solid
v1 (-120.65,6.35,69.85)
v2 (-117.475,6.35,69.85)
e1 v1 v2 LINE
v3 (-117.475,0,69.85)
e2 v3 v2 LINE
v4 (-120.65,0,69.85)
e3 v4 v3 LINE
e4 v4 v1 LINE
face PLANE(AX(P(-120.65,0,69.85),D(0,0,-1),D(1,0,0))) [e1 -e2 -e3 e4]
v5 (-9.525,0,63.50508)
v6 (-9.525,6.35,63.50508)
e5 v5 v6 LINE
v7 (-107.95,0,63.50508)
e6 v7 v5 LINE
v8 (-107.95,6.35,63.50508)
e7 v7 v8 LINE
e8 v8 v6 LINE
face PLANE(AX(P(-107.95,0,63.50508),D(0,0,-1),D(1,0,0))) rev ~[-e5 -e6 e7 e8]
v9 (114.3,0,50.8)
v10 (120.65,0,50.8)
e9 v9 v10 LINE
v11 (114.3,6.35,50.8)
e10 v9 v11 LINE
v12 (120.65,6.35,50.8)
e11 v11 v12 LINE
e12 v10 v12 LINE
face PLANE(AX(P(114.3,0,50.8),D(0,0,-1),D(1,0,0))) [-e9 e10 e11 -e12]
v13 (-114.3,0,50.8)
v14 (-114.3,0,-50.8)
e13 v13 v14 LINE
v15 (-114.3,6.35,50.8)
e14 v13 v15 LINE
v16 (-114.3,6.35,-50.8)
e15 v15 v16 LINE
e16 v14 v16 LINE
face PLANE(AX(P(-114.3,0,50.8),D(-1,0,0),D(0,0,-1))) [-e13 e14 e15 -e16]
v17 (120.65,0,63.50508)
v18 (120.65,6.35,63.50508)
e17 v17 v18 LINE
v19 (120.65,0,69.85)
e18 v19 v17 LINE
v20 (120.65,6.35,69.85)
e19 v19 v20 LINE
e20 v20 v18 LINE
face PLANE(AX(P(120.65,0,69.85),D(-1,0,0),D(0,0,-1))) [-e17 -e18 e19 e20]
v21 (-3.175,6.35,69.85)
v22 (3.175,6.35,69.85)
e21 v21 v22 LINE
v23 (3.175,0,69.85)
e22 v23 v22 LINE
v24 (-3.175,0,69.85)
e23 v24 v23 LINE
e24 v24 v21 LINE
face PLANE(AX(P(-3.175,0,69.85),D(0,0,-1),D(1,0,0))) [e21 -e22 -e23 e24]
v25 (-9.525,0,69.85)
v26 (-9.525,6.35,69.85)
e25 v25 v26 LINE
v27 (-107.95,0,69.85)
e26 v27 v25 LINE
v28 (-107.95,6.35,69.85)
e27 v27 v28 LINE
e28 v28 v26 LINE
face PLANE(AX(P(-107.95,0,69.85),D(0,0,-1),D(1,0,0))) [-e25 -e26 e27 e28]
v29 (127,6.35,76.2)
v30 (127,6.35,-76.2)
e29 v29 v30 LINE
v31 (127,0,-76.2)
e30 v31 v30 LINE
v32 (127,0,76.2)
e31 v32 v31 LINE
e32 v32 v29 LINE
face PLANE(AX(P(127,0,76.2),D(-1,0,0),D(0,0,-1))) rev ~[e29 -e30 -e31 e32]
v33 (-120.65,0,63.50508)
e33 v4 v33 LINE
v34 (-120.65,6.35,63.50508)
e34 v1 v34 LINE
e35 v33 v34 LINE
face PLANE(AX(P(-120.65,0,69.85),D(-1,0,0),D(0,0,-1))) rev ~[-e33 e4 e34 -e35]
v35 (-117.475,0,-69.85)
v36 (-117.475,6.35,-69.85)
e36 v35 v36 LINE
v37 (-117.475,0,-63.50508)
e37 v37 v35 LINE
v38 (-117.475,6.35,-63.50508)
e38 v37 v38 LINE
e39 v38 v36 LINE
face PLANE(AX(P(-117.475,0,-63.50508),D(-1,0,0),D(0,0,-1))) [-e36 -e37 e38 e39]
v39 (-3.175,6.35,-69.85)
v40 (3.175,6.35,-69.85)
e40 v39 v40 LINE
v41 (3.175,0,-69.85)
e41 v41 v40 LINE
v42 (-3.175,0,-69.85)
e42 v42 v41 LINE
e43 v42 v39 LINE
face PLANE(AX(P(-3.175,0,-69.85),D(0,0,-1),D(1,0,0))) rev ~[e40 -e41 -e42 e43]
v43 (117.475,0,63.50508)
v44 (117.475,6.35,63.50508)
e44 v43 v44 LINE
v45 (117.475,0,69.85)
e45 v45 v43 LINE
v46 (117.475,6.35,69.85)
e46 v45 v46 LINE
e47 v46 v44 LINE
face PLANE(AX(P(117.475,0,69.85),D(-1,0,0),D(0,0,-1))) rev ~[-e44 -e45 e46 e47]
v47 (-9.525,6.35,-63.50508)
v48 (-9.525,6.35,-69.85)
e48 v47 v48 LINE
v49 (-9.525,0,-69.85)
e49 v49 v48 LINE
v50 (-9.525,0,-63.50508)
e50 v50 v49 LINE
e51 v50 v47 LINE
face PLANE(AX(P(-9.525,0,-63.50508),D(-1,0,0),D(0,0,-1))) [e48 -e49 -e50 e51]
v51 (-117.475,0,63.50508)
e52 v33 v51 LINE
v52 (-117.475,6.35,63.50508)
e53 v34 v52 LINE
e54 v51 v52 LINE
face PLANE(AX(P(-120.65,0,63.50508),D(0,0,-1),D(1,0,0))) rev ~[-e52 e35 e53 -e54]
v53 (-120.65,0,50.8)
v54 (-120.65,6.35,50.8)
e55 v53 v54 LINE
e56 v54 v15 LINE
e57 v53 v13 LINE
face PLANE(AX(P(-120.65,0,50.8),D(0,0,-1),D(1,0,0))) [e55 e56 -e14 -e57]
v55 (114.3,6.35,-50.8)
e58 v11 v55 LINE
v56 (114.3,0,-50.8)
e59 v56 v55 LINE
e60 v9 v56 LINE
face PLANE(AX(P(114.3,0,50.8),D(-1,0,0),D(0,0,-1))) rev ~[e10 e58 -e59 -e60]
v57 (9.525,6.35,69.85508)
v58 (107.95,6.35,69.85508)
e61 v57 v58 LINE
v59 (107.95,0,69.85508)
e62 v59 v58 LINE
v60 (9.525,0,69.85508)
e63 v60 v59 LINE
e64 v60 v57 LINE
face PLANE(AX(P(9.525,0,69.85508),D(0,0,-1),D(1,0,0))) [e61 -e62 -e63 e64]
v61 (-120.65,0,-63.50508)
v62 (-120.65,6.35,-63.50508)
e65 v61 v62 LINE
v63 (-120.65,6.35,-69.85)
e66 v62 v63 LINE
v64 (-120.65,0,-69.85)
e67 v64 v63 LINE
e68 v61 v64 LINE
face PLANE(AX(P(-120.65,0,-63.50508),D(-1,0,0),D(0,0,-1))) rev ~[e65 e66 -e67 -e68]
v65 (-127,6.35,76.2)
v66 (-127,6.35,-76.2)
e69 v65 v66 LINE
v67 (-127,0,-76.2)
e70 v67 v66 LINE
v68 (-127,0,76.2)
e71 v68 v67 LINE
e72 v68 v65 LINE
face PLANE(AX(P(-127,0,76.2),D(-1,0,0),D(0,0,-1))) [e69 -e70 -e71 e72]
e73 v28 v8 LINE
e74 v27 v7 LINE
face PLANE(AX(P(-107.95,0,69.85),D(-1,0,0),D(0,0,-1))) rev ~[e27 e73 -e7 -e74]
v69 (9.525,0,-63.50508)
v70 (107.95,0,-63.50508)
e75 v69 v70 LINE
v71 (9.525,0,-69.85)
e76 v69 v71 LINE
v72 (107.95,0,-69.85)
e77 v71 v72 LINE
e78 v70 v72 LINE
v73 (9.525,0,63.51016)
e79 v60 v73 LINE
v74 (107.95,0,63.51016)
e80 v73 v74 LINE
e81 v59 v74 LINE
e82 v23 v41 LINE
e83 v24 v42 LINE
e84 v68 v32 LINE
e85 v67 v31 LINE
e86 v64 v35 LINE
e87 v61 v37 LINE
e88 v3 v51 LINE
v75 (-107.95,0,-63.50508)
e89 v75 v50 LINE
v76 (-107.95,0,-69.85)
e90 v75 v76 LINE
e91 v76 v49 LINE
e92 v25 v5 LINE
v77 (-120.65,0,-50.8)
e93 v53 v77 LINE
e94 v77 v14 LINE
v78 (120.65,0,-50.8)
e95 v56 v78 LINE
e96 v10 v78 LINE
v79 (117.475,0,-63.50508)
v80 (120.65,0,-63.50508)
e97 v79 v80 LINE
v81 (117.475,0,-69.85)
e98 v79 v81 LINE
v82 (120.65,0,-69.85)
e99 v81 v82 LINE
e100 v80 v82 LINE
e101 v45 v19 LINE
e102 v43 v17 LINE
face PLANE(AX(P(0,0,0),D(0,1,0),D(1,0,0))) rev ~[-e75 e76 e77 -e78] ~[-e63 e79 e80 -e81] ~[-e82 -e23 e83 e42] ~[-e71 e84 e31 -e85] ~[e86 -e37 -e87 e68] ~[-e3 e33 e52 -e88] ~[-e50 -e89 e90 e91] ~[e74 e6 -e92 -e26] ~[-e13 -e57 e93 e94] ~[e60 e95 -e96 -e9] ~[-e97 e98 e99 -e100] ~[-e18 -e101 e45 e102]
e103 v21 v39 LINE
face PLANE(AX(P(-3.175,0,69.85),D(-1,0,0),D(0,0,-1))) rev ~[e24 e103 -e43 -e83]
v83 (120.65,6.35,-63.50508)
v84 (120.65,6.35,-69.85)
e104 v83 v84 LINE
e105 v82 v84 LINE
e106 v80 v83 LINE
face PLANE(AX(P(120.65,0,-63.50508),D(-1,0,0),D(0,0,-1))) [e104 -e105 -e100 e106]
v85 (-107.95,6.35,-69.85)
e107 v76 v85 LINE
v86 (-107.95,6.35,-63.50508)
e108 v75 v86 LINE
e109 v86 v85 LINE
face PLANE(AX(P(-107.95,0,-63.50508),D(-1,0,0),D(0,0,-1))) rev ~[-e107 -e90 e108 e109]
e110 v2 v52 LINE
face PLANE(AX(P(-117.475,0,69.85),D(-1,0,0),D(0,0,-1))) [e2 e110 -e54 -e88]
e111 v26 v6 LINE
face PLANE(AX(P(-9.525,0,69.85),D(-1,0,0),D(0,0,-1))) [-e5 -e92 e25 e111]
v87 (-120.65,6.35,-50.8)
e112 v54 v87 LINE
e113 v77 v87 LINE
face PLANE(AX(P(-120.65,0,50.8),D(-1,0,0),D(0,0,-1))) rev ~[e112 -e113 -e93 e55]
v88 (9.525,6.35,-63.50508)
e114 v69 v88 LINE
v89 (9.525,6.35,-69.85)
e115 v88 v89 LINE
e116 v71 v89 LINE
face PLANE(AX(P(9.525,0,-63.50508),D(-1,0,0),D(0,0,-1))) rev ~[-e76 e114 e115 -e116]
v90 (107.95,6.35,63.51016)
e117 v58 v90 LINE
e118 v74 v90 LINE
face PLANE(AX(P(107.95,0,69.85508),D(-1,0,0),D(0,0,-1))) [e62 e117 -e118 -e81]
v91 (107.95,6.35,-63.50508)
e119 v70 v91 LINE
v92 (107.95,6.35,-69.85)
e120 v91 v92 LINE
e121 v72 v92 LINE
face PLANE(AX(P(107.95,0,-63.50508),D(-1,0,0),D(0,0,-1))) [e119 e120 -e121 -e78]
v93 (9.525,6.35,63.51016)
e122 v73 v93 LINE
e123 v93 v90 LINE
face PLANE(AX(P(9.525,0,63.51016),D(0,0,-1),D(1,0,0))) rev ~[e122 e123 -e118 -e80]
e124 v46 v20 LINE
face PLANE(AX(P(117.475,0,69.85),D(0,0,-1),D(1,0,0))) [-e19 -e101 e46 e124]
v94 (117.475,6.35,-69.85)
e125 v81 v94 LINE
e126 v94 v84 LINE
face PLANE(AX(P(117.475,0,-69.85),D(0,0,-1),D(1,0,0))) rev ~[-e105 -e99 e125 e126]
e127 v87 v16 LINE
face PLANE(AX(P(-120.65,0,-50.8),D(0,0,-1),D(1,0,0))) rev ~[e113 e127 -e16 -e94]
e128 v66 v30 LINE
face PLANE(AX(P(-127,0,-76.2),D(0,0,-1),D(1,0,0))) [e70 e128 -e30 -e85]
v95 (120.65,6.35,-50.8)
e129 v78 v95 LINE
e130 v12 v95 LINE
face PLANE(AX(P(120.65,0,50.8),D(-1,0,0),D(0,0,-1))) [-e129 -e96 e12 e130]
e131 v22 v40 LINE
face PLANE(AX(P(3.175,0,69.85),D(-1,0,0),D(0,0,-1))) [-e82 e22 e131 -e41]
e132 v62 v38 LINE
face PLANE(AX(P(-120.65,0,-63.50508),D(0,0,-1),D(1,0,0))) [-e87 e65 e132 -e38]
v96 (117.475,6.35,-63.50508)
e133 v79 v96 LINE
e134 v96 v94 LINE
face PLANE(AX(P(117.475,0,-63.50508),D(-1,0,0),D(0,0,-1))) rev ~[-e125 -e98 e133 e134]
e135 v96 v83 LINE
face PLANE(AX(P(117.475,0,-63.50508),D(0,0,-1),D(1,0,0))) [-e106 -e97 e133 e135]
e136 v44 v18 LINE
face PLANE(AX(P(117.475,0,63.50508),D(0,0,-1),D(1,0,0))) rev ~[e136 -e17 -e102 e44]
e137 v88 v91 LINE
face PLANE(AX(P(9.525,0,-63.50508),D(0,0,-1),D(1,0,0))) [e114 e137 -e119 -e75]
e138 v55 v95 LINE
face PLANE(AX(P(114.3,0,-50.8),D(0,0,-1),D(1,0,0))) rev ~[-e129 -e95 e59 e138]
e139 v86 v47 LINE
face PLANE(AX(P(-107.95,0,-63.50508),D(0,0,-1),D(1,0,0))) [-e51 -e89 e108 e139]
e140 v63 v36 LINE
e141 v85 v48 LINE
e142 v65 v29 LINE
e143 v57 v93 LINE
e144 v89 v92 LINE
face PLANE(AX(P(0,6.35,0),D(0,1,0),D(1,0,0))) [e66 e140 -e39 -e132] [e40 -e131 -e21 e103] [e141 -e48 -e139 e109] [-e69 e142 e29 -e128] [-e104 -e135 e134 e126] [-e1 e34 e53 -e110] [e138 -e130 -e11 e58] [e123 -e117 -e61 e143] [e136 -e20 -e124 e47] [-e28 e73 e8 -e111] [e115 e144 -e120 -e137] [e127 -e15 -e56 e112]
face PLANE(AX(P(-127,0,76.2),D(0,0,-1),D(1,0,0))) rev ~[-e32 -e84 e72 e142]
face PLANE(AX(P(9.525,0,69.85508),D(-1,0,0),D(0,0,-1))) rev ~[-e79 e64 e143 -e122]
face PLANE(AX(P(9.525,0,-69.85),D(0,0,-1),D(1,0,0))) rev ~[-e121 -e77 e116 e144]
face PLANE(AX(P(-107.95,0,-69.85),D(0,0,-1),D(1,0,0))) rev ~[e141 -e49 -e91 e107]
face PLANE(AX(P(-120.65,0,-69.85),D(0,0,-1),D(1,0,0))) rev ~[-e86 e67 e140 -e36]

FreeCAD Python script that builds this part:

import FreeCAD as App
import Part
import Sketcher
from FreeCAD import Vector
Q = App.Units.Quantity


def add_polygon(sketch, points):
    """Adds a closed chain of lines whose ends are joined by coincident constraints."""
    first, n = sketch.GeometryCount, len(points)
    for a, b in zip(points, points[1:] + points[:1]):
        sketch.addGeometry(Part.LineSegment(App.Vector(*a, 0), App.Vector(*b, 0)), False)
    for i in range(n):
        sketch.addConstraint(Sketcher.Constraint("Coincident", first + i, 2, first + (i + 1) % n, 1))

doc = App.newDocument("Part")
body = doc.addObject("PartDesign::Body", "Body")

# Sketch on XZ plane
sketch1 = body.newObject("Sketcher::SketchObject", "Sketch")
sketch1.AttachmentSupport = (doc.getObject("XZ_Plane"), [""])
sketch1.MapMode = "FlatFace"
add_polygon(sketch1, [(-127, -76.2), (-127, 76.2), (127, 76.2), (127, -76.2)])  # lines 0-3
add_polygon(sketch1, [(-117.5, 69.8), (-120.7, 69.8), (-120.7, 63.5), (-117.5, 63.5)])  # lines 4-7
add_polygon(sketch1, [(-9.5, 69.8), (-108, 69.8), (-108, 63.5), (-9.5, 63.5)])  # lines 8-11
add_polygon(sketch1, [(108, 69.9), (9.5, 69.9), (9.5, 63.5), (108, 63.5)])  # lines 12-15
add_polygon(sketch1, [(120.7, 69.8), (117.5, 69.8), (117.5, 63.5), (120.7, 63.5)])  # lines 16-19
add_polygon(sketch1, [(-114.3, 50.8), (-120.7, 50.8), (-120.7, -50.8), (-114.3, -50.8)])  # lines 20-23
add_polygon(sketch1, [(-117.5, -63.5), (-120.7, -63.5), (-120.7, -69.8), (-117.5, -69.8)])  # lines 24-27
add_polygon(sketch1, [(-9.5, -63.5), (-108, -63.5), (-108, -69.8), (-9.5, -69.8)])  # lines 28-31
add_polygon(sketch1, [(3.2, 69.8), (-3.2, 69.8), (-3.2, -69.8), (3.2, -69.8)])  # lines 32-35
add_polygon(sketch1, [(120.7, 50.8), (114.3, 50.8), (114.3, -50.8), (120.7, -50.8)])  # lines 36-39
add_polygon(sketch1, [(108, -63.5), (9.5, -63.5), (9.5, -69.8), (108, -69.8)])  # lines 40-43
add_polygon(sketch1, [(120.7, -63.5), (117.5, -63.5), (117.5, -69.8), (120.7, -69.8)])  # lines 44-47
sketch1.addConstraint([
    Sketcher.Constraint("Vertical", 0),
    Sketcher.Constraint("Horizontal", 1),
    Sketcher.Constraint("Vertical", 2),
    Sketcher.Constraint("Horizontal", 3),
    Sketcher.Constraint("Horizontal", 4),
    Sketcher.Constraint("Vertical", 5),
    Sketcher.Constraint("Horizontal", 6),
    Sketcher.Constraint("Vertical", 7),
    Sketcher.Constraint("Horizontal", 8),
    Sketcher.Constraint("Vertical", 9),
    Sketcher.Constraint("Horizontal", 10),
    Sketcher.Constraint("Vertical", 11),
    Sketcher.Constraint("Horizontal", 12),
    Sketcher.Constraint("Vertical", 13),
    Sketcher.Constraint("Horizontal", 14),
    Sketcher.Constraint("Vertical", 15),
    Sketcher.Constraint("Horizontal", 16),
    Sketcher.Constraint("Vertical", 17),
    Sketcher.Constraint("Horizontal", 18),
    Sketcher.Constraint("Vertical", 19),
    Sketcher.Constraint("Horizontal", 20),
    Sketcher.Constraint("Vertical", 21),
    Sketcher.Constraint("Horizontal", 22),
    Sketcher.Constraint("Vertical", 23),
    Sketcher.Constraint("Horizontal", 24),
    Sketcher.Constraint("Vertical", 25),
    Sketcher.Constraint("Horizontal", 26),
    Sketcher.Constraint("Vertical", 27),
    Sketcher.Constraint("Horizontal", 28),
    Sketcher.Constraint("Vertical", 29),
    Sketcher.Constraint("Horizontal", 30),
    Sketcher.Constraint("Vertical", 31),
    Sketcher.Constraint("Horizontal", 32),
    Sketcher.Constraint("Vertical", 33),
    Sketcher.Constraint("Horizontal", 34),
    Sketcher.Constraint("Vertical", 35),
    Sketcher.Constraint("Horizontal", 36),
    Sketcher.Constraint("Vertical", 37),
    Sketcher.Constraint("Horizontal", 38),
    Sketcher.Constraint("Vertical", 39),
    Sketcher.Constraint("Horizontal", 40),
    Sketcher.Constraint("Vertical", 41),
    Sketcher.Constraint("Horizontal", 42),
    Sketcher.Constraint("Vertical", 43),
    Sketcher.Constraint("Horizontal", 44),
    Sketcher.Constraint("Vertical", 45),
    Sketcher.Constraint("Horizontal", 46),
    Sketcher.Constraint("Vertical", 47),
    Sketcher.Constraint("Symmetric", 0, 2, 2, 2, -1, 1),
    Sketcher.Constraint("Symmetric", 18, 2, 24, 2, -1, 1),
    Sketcher.Constraint("Symmetric", 16, 2, 26, 2, -1, 1),
    Sketcher.Constraint("Symmetric", 32, 2, 34, 2, -1, 1),
    Sketcher.Constraint("Symmetric", 22, 2, 36, 2, -1, 1),
    Sketcher.Constraint("Symmetric", 20, 2, 38, 2, -1, 1),
    Sketcher.Constraint("Symmetric", 10, 2, 40, 2, -1, 1),
    Sketcher.Constraint("Symmetric", 8, 2, 42, 2, -1, 1),
    Sketcher.Constraint("Symmetric", 6, 2, 44, 2, -1, 1),
    Sketcher.Constraint("Symmetric", 4, 2, 46, 2, -1, 1),
    Sketcher.Constraint("Symmetric", 7, 2, 16, 2, -2),
    Sketcher.Constraint("Symmetric", 5, 2, 18, 2, -2),
    Sketcher.Constraint("Symmetric", 31, 2, 40, 2, -2),
    Sketcher.Constraint("Symmetric", 29, 2, 42, 2, -2),
    Sketcher.Constraint("Horizontal", 7, 2, 8, 2),
    Sketcher.Constraint("Horizontal", 6, 2, 9, 2),
    Sketcher.Constraint("Horizontal", 19, 2, 32, 2),
    Sketcher.Constraint("Horizontal", 23, 2, 36, 2),
    Sketcher.Constraint("Vertical", 5, 2, 20, 2),
    Sketcher.Constraint("Vertical", 13, 2, 40, 2),
    Sketcher.Constraint("Vertical", 15, 2, 42, 2),
    Sketcher.Constraint("Equal", 22, 32),
    Sketcher.Constraint("Equal", 11, 13),
    Sketcher.Constraint("DistanceX", 1, 1, 1, 2, Q("10 in")),
    Sketcher.Constraint("DistanceY", 0, 1, 0, 2, Q("6 in")),
    Sketcher.Constraint("DistanceY", 21, 2, 21, 1, Q("4 in")),
    Sketcher.Constraint("DistanceY", 33, 2, 33, 1, Q("5.5 in")),
    Sketcher.Constraint("DistanceX", 20, 2, 20, 1, Q("0.25 in")),
    Sketcher.Constraint("DistanceX", 22, 2, -1, 1, Q("4.5 in")),
    Sketcher.Constraint("DistanceX", 4, 2, 8, 2, Q("0.5 in")),
    Sketcher.Constraint("DistanceX", 32, 2, 12, 2, Q("0.5 in")),
    Sketcher.Constraint("DistanceX", 4, 2, 4, 1, Q("0.125 in")),
    Sketcher.Constraint("DistanceY", 10, 2, 12, 2, Q("0.25 in")),
    Sketcher.Constraint("DistanceY", 5, 2, 5, 1, Q("0.2498 in")),
])
pad1 = body.newObject("PartDesign::Pad", "Pad")
pad1.Profile = sketch1
pad1.Length = Q("0.25 in")
pad1.Reversed = True

doc.recompute()
